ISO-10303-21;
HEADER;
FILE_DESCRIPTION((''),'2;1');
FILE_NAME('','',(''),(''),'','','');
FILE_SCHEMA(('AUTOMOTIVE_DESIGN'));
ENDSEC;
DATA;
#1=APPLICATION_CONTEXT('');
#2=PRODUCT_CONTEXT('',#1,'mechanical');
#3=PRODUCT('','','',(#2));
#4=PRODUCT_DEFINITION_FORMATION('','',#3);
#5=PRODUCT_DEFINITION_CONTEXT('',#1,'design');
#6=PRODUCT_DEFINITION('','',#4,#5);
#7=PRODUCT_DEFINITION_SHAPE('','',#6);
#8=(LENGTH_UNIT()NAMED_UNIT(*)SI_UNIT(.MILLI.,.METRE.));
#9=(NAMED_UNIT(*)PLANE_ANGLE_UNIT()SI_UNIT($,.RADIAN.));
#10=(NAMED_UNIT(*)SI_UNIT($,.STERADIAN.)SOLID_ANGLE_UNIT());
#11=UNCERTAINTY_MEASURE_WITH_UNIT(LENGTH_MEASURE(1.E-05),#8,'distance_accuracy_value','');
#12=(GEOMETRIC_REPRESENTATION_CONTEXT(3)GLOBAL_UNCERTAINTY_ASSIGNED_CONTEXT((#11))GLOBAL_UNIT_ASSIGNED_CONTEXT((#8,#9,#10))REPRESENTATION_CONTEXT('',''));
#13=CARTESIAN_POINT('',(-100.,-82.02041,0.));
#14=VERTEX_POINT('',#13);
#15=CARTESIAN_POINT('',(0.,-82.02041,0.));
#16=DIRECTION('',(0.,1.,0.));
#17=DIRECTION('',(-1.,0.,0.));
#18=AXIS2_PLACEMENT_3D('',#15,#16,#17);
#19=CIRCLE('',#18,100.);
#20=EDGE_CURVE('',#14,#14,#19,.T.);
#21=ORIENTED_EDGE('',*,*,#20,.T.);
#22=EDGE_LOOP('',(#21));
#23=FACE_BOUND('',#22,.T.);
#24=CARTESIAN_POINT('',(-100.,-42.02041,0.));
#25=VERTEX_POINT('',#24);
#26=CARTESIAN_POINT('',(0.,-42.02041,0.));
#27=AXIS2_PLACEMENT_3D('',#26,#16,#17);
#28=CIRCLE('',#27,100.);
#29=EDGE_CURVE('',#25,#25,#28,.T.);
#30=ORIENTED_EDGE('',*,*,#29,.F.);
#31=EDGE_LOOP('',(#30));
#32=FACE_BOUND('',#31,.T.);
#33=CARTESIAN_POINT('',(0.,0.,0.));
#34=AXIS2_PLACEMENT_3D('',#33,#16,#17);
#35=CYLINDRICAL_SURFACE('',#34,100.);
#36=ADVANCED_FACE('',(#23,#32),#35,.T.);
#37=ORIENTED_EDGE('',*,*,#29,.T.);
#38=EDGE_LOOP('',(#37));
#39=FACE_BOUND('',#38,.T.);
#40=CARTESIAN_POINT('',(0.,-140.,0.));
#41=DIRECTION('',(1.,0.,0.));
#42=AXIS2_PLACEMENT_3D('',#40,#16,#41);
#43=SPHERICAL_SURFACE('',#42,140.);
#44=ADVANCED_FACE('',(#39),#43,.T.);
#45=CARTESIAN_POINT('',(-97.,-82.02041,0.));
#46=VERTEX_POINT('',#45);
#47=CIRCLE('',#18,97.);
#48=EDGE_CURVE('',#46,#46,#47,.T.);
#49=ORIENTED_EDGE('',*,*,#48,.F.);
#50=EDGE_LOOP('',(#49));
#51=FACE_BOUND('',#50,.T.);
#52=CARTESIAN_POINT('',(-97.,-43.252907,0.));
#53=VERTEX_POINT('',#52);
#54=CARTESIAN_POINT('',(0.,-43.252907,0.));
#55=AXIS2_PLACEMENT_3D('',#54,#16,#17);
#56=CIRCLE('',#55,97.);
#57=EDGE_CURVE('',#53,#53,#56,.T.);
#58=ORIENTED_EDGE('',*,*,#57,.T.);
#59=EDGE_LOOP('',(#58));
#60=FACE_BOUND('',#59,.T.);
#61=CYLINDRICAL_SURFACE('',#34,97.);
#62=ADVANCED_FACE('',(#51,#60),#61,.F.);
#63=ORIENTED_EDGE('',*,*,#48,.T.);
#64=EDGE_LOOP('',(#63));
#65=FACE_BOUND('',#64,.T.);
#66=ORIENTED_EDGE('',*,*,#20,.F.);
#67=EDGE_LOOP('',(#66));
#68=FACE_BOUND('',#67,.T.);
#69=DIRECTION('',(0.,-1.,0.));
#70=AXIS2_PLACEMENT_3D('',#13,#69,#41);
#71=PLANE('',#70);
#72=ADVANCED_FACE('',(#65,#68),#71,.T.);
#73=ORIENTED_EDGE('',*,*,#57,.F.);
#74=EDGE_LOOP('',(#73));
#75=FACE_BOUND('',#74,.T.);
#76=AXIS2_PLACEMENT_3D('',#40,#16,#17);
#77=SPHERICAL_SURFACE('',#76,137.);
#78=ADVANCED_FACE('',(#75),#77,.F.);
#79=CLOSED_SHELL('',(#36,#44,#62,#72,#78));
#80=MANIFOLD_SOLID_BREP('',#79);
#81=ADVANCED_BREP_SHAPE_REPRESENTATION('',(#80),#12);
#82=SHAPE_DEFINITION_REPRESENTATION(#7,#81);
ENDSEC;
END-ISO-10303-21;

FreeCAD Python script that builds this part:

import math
import FreeCAD as App
import Part
import Sketcher

V = App.Vector
Q = App.Units.Quantity

doc = App.newDocument("Part")
body = doc.addObject("PartDesign::Body", "Body")

# Sketch on XY plane
sketch1 = body.newObject("Sketcher::SketchObject", "Sketch")
sketch1.AttachmentSupport = (doc.getObject("XY_Plane"), [""])
sketch1.MapMode = "FlatFace"
sketch1.addGeometry([
    Part.LineSegment(V(-100, -42, 0), V(-100, -82, 0)),  # 0
    Part.LineSegment(V(-100, -82, 0), V(-97, -82, 0)),  # 1
    Part.LineSegment(V(-97, -82, 0), V(-97, -43.3, 0)),  # 2
    Part.ArcOfCircle(Part.Circle(V(0, -140, 0), V(0, 0, 1), 137), math.radians(90), math.radians(135)),  # 3
    Part.LineSegment(V(0, -3, 0), V(0, 0, 0)),  # 4
    Part.ArcOfCircle(Part.Circle(V(0, -140, 0), V(0, 0, 1), 140), math.radians(90), math.radians(136)),  # 5
], False)
sketch1.addConstraint([
    Sketcher.Constraint("Coincident", 0, 2, 1, 1),
    Sketcher.Constraint("Coincident", 1, 2, 2, 1),
    Sketcher.Constraint("Coincident", 2, 2, 3, 2),
    Sketcher.Constraint("Coincident", 3, 1, 4, 1),
    Sketcher.Constraint("Coincident", 4, 2, 5, 1),
    Sketcher.Constraint("Coincident", 5, 2, 0, 1),
    Sketcher.Constraint("Vertical", 0),
    Sketcher.Constraint("Horizontal", 1),
    Sketcher.Constraint("Vertical", 2),
    Sketcher.Constraint("Vertical", 4),
    Sketcher.Constraint("Coincident", 4, 2, -1, 1),
    Sketcher.Constraint("Coincident", 5, 3, 3, 3),
    Sketcher.Constraint("PointOnObject", 3, 3, -2),
    Sketcher.Constraint("Equal", 1, 4),
    Sketcher.Constraint("Radius", 3, Q("137 mm")),
    Sketcher.Constraint("Radius", 5, Q("140 mm")),
    Sketcher.Constraint("DistanceY", 0, 2, 0, 1, Q("40 mm")),
    Sketcher.Constraint("DistanceX", 0, 2, -1, 1, Q("100 mm")),
])
revolution = body.newObject("PartDesign::Revolution", "Revolution")
revolution.Profile = sketch1
revolution.ReferenceAxis = (sketch1, ["V_Axis"])
revolution.Angle = 360

doc.recompute()
